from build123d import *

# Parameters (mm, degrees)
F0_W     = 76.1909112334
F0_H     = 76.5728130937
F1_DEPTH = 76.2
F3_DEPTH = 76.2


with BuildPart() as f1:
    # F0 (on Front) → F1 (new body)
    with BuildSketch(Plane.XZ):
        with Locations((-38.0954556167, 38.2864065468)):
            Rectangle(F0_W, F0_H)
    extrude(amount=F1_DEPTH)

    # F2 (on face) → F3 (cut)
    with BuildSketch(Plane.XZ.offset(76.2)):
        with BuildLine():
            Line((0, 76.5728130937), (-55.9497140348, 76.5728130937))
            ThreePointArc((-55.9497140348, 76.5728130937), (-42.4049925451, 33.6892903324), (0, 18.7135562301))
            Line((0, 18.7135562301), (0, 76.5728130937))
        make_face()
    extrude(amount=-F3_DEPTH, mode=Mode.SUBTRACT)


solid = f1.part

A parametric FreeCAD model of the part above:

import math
import FreeCAD as App
import Part
import Sketcher
from FreeCAD import Vector
Q = App.Units.Quantity

doc = App.newDocument("Part")
body = doc.addObject("PartDesign::Body", "Body")

# Sketch on XZ plane
sketch1 = doc.addObject("Sketcher::SketchObject", "Sketch")
body.addObject(sketch1)
sketch1.AttachmentSupport = (doc.XZ_Plane, [""])
sketch1.MapMode = "FlatFace"
sketch1.addGeometry([
    Part.LineSegment(Vector(-76.190911, 76.572813, 0), Vector(-76.190911, 0, 0)),
    Part.LineSegment(Vector(-76.190911, 0, 0), Vector(0, 0, 0)),
    Part.LineSegment(Vector(0, 0, 0), Vector(0, 76.572813, 0)),
    Part.LineSegment(Vector(0, 76.572813, 0), Vector(-76.190911, 76.572813, 0)),
], False)
sketch1.addConstraint([
    Sketcher.Constraint("Coincident", 0, 2, 1, 1),
    Sketcher.Constraint("Coincident", 1, 2, 2, 1),
    Sketcher.Constraint("Coincident", 2, 2, 3, 1),
    Sketcher.Constraint("Coincident", 3, 2, 0, 1),
    Sketcher.Constraint("Vertical", 0),
    Sketcher.Constraint("Horizontal", 1),
    Sketcher.Constraint("Vertical", 2),
    Sketcher.Constraint("Horizontal", 3),
    Sketcher.Constraint("Coincident", 1, 2, -1, 1),
    Sketcher.Constraint("DistanceX", 1, 1, 1, 2, 76.190911),
    Sketcher.Constraint("DistanceY", 0, 2, 0, 1, 76.572813),
])
pad1 = doc.addObject("PartDesign::Pad", "Pad")
body.addObject(pad1)
pad1.Profile = sketch1
pad1.Length = Q("3 in")

# Sketch on XZ plane
sketch2 = doc.addObject("Sketcher::SketchObject", "Sketch001")
body.addObject(sketch2)
sketch2.AttachmentSupport = (doc.XZ_Plane, [""])
sketch2.MapMode = "FlatFace"
sketch2.AttachmentOffset = App.Placement(Vector(0, 0, 3 * 25.4), App.Rotation())
sketch2.addGeometry([
    Part.LineSegment(Vector(0, 76.572813, 0), Vector(-55.949714, 76.572813, 0)),
    Part.ArcOfCircle(Part.Circle(Vector(-6.190772, 68.708324, 0), Vector(0, 0, 1), 50.376606), math.radians(171.018595), math.radians(277.058912)),
    Part.LineSegment(Vector(0, 18.713556, 0), Vector(0, 76.572813, 0)),
], False)
sketch2.addConstraint([
    Sketcher.Constraint("Coincident", 0, 2, 1, 1),
    Sketcher.Constraint("Coincident", 1, 2, 2, 1),
    Sketcher.Constraint("Coincident", 2, 2, 0, 1),
    Sketcher.Constraint("Horizontal", 0),
    Sketcher.Constraint("Vertical", 2),
    Sketcher.Constraint("PointOnObject", 1, 2, -2),
    Sketcher.Constraint("Radius", 1, 50.376606),
    Sketcher.Constraint("DistanceX", 0, 2, 0, 1, 55.949714),
    Sketcher.Constraint("DistanceY", 2, 1, 2, 2, 57.859257),
    Sketcher.Constraint("DistanceY", -1, 1, 1, 3, 68.708324),
])
pocket1 = doc.addObject("PartDesign::Pocket", "Pocket")
body.addObject(pocket1)
pocket1.Profile = sketch2
pocket1.Length = Q("3 in")

doc.recompute()
